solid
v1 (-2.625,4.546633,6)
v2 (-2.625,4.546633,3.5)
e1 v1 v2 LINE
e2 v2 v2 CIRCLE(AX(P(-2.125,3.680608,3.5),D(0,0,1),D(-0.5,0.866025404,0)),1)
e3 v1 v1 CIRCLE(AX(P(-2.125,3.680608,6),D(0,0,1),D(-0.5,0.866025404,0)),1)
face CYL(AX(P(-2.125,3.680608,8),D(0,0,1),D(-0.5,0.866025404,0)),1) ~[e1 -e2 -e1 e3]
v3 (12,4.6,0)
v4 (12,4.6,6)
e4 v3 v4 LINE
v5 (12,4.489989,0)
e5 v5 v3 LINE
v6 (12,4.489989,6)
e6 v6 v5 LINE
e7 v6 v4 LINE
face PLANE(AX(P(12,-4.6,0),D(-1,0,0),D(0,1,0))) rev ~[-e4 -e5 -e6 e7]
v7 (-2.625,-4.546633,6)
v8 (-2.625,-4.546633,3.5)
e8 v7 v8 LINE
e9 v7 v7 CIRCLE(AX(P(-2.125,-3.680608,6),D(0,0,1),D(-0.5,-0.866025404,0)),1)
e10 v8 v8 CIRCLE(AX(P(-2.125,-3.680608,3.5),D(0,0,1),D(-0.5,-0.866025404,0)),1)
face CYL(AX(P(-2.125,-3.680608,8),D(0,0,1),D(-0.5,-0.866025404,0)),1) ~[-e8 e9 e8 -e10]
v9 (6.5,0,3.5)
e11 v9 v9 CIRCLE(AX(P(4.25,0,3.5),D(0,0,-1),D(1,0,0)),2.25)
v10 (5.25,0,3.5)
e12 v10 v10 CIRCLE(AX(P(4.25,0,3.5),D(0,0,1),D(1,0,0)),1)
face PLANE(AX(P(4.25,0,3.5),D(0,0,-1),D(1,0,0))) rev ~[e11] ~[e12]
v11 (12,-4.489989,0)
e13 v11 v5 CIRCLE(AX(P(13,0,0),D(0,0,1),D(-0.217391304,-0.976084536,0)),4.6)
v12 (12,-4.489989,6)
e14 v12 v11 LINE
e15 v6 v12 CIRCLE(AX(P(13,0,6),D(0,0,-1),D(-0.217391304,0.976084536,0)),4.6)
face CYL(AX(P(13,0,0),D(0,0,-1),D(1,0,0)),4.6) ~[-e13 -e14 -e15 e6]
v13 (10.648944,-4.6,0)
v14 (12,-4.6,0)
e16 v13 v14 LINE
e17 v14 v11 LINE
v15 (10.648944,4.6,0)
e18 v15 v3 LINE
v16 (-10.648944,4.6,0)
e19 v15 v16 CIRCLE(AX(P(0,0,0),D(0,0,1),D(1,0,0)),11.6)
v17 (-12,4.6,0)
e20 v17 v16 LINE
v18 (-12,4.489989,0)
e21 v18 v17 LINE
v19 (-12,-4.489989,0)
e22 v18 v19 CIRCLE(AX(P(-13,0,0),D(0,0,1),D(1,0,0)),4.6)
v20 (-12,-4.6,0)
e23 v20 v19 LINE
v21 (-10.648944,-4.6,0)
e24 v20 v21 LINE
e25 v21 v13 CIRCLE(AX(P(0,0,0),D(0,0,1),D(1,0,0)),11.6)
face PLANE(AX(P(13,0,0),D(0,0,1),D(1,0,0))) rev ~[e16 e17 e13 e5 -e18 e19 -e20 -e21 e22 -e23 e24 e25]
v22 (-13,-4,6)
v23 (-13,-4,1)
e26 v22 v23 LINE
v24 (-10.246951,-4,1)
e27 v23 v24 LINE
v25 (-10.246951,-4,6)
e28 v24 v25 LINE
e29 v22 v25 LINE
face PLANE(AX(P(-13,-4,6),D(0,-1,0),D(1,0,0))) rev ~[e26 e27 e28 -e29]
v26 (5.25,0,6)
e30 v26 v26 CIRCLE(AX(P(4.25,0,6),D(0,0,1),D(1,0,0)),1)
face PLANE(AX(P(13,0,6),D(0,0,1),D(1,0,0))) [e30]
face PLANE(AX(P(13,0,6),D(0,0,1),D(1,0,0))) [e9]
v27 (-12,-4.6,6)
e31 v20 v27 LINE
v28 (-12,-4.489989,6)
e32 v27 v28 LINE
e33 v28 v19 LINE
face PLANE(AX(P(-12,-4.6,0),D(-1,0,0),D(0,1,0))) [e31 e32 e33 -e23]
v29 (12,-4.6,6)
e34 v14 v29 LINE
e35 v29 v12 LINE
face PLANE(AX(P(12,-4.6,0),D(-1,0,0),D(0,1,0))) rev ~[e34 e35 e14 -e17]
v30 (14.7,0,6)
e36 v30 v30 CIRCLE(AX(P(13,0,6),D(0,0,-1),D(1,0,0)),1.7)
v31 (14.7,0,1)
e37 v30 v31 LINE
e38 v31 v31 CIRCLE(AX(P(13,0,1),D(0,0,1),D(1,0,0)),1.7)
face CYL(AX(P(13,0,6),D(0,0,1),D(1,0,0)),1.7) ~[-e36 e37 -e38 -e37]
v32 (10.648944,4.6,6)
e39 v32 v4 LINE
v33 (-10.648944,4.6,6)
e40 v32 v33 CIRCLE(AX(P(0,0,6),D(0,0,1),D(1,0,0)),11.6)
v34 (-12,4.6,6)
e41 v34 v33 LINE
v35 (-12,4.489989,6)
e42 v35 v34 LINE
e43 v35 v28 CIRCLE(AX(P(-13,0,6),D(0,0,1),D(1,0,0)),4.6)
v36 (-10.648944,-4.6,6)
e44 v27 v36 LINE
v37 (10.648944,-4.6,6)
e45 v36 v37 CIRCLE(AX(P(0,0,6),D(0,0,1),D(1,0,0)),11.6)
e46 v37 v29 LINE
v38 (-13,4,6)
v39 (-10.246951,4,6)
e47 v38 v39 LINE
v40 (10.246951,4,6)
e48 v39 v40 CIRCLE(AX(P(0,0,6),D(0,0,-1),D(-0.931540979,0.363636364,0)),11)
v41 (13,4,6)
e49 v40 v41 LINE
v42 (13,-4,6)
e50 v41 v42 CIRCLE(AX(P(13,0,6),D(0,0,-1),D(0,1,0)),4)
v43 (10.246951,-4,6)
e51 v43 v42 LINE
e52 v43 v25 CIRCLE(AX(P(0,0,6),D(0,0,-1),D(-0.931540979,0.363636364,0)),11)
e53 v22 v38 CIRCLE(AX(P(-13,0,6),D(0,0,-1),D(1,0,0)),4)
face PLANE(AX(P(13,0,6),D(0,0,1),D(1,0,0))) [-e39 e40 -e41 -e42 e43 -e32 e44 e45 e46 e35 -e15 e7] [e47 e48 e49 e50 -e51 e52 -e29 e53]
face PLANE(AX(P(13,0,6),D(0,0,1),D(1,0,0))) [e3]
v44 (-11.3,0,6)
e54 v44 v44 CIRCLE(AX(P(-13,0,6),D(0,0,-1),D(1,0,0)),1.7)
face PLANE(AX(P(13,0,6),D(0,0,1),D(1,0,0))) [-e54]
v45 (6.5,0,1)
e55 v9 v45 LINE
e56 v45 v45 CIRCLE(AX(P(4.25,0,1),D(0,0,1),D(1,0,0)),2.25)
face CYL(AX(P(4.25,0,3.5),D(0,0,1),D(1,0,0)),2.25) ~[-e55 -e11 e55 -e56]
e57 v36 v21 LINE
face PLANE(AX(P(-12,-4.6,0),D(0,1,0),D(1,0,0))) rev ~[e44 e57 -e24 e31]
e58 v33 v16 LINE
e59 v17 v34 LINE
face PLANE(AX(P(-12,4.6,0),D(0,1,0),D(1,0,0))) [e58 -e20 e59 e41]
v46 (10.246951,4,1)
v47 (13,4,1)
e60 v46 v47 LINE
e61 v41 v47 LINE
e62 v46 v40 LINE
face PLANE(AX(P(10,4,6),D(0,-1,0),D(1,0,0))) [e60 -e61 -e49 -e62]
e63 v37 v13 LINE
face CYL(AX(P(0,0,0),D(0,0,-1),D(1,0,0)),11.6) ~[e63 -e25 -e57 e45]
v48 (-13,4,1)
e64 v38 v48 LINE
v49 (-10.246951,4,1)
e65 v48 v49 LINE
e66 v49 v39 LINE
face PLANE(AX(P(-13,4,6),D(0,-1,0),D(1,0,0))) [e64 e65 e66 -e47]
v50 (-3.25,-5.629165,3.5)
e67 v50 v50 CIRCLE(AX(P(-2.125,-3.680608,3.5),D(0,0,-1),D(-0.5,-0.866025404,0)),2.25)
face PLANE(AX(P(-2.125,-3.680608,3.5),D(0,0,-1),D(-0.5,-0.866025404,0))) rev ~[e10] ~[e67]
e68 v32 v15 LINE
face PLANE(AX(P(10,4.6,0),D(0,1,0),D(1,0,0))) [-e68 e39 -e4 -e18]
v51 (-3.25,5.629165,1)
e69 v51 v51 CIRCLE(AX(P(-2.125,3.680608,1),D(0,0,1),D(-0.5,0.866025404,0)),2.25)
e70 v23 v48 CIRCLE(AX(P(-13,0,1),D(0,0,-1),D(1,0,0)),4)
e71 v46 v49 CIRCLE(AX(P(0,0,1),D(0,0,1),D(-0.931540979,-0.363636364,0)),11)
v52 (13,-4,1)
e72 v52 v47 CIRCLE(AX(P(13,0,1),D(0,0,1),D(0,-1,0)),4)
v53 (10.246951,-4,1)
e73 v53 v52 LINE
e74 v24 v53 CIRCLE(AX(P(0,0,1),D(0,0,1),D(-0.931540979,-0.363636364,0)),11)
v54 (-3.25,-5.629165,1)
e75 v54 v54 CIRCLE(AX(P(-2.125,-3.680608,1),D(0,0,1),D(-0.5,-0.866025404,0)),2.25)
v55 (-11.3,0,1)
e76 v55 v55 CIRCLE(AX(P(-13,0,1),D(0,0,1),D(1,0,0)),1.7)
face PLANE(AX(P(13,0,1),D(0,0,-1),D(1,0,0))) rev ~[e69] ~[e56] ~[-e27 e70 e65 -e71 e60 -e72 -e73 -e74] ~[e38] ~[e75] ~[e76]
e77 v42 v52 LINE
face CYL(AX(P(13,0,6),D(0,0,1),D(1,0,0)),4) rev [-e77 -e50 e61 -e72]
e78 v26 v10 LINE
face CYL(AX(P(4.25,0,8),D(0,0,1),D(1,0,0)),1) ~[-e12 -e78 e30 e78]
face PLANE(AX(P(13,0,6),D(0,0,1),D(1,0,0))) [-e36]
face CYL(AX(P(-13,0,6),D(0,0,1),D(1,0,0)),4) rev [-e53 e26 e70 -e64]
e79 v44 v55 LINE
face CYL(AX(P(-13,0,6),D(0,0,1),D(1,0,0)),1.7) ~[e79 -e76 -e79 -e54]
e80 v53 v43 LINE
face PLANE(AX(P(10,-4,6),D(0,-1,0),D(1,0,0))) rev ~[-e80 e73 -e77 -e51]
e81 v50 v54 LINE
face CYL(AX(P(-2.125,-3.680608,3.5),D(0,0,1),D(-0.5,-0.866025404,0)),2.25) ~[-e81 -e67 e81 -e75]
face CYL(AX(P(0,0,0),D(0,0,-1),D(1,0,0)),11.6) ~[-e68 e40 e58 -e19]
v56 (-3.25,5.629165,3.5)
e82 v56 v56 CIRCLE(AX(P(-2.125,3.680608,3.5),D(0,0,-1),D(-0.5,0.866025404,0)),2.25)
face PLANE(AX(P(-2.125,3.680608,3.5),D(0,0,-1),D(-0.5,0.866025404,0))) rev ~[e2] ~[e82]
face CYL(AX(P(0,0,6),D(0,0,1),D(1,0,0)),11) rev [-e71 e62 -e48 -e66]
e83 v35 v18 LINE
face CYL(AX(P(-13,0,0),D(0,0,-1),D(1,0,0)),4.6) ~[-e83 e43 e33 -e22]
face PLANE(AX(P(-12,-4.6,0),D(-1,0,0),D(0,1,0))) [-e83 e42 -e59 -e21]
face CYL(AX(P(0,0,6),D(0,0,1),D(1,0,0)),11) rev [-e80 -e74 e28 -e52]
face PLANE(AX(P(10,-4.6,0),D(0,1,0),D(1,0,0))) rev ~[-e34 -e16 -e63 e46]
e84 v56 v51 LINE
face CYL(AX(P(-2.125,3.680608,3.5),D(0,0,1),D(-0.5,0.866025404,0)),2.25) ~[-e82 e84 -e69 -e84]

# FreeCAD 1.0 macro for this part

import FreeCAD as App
import Part
import Sketcher

V = App.Vector
Q = App.Units.Quantity


def add_polygon(sketch, points):
    """Adds a closed chain of lines whose ends are joined by coincident constraints."""
    first, n = sketch.GeometryCount, len(points)
    for a, b in zip(points, points[1:] + points[:1]):
        sketch.addGeometry(Part.LineSegment(App.Vector(*a, 0), App.Vector(*b, 0)), False)
    for i in range(n):
        sketch.addConstraint(Sketcher.Constraint("Coincident", first + i, 2, first + (i + 1) % n, 1))

doc = App.newDocument("Part")
body = doc.addObject("PartDesign::Body", "Body")

# Sketch on XY plane
sketch1 = body.newObject("Sketcher::SketchObject", "Sketch")
sketch1.AttachmentSupport = (doc.getObject("XY_Plane"), [""])
sketch1.MapMode = "FlatFace"
sketch1.addGeometry(Part.Circle(V(-13, 0, 0), V(0, 0, 1), 1.7), False)
sketch1.addConstraint([
    Sketcher.Constraint("PointOnObject", 0, 3, -1),
    Sketcher.Constraint("Diameter", 0, Q("3.4 mm")),
    Sketcher.Constraint("DistanceX", 0, 3, -1, 1, Q("13 mm")),
])
pad1 = body.newObject("PartDesign::Pad", "Pad")
pad1.Profile = sketch1
pad1.Length = 11
body2 = doc.addObject("PartDesign::Body", "Body001")

# Sketch on XY plane
sketch2 = body2.newObject("Sketcher::SketchObject", "Sketch001")
sketch2.AttachmentSupport = (doc.getObject("XY_Plane001"), [""])
sketch2.MapMode = "FlatFace"
sketch2.addGeometry(Part.Circle(V(13, 0, 0), V(0, 0, 1), 1.7), False)
sketch2.addConstraint([
    Sketcher.Constraint("PointOnObject", 0, 3, -1),
    Sketcher.Constraint("Diameter", 0, Q("3.4 mm")),
    Sketcher.Constraint("DistanceX", -1, 1, 0, 3, Q("13 mm")),
])
pad2 = body2.newObject("PartDesign::Pad", "Pad001")
pad2.Profile = sketch2
pad2.Length = 11
body3 = doc.addObject("PartDesign::Body", "Body002")

# Sketch on XY plane
sketch3 = body3.newObject("Sketcher::SketchObject", "Sketch002")
sketch3.AttachmentSupport = (doc.getObject("XY_Plane002"), [""])
sketch3.MapMode = "FlatFace"
sketch3.AttachmentOffset = App.Placement(V(0, 0, 2.5), App.Rotation())
sketch3.addGeometry(Part.Circle(V(0, 0, 0), V(0, 0, 1), 2.25), False)
sketch3.addConstraint([
    Sketcher.Constraint("Coincident", 0, 3, -1, 1),
    Sketcher.Constraint("Diameter", 0, Q("4.5 mm")),
])
pad3 = body3.newObject("PartDesign::Pad", "Pad002")
pad3.Profile = sketch3
pad3.Length = 8
body4 = doc.addObject("PartDesign::Body", "Body003")

# Sketch on XY plane
sketch4 = body4.newObject("Sketcher::SketchObject", "Sketch003")
sketch4.AttachmentSupport = (doc.getObject("XY_Plane003"), [""])
sketch4.MapMode = "FlatFace"
sketch4.AttachmentOffset = App.Placement(V(0, 0, -2), App.Rotation())
sketch4.addGeometry(Part.Circle(V(0, 0, 0), V(0, 0, 1), 1), False)
sketch4.addConstraint([
    Sketcher.Constraint("Coincident", 0, 3, -1, 1),
    Sketcher.Constraint("Diameter", 0, Q("2 mm")),
])
pad4 = body4.newObject("PartDesign::Pad", "Pad003")
pad4.Profile = sketch4
pad4.Length = 5
body5 = doc.addObject("PartDesign::Body", "Body004")

# Sketch on XY plane
sketch5 = body5.newObject("Sketcher::SketchObject", "Sketch004")
sketch5.AttachmentSupport = (doc.getObject("XY_Plane004"), [""])
sketch5.MapMode = "FlatFace"
sketch5.AttachmentOffset = App.Placement(V(0, 0, 4.5), App.Rotation())
sketch5.addGeometry(Part.Circle(V(0, 0, 0), V(0, 0, 1), 1), False)
sketch5.addConstraint([
    Sketcher.Constraint("Coincident", 0, 3, -1, 1),
    Sketcher.Constraint("Diameter", 0, Q("2 mm")),
])
pad5 = body5.newObject("PartDesign::Pad", "Pad004")
pad5.Profile = sketch5
pad5.Length = 1
doc.recompute()

boolean = body5.newObject("PartDesign::Boolean", "Boolean")
boolean.Type = "Fuse"
boolean.addObjects([body3])
doc.recompute()

boolean2 = body5.newObject("PartDesign::Boolean", "Boolean001")
boolean2.Type = "Fuse"
boolean2.addObjects([body4])
body6 = doc.addObject("PartDesign::Body", "Body005")
doc.recompute()

body5.Placement = App.Placement(V(4.25, 0, 0), App.Rotation(V(0, 0, 1), 0))
boolean3 = body6.newObject("PartDesign::Boolean", "Boolean002")
boolean3.Type = "Fuse"
boolean3.addObjects([body5])
body7 = doc.addObject("PartDesign::Body", "Body006")
body7.AllowCompound = True
doc.recompute()

body7.BaseFeature = body6
doc.recompute()

body8 = doc.addObject("PartDesign::Body", "Body007")
body8.BaseFeature = body6
body8.Placement = App.Placement(V(0, 0, 0), App.Rotation(V(0, 0, 1), 120))
boolean4 = body7.newObject("PartDesign::Boolean", "Boolean003")
boolean4.Type = "Fuse"
boolean4.addObjects([body8])
doc.recompute()

body6.Placement = App.Placement(V(0, 0, 0), App.Rotation(V(0, 0, 1), 240))
boolean5 = body7.newObject("PartDesign::Boolean", "Boolean004")
boolean5.Type = "Fuse"
boolean5.addObjects([body6])
doc.recompute()

boolean6 = body7.newObject("PartDesign::Boolean", "Boolean005")
boolean6.Type = "Fuse"
boolean6.addObjects([body])
doc.recompute()

boolean7 = body7.newObject("PartDesign::Boolean", "Boolean006")
boolean7.Type = "Fuse"
boolean7.addObjects([body2])
body9 = doc.addObject("PartDesign::Body", "Body008")

# Sketch on XY plane
sketch6 = body9.newObject("Sketcher::SketchObject", "Sketch005")
sketch6.AttachmentSupport = (doc.getObject("XY_Plane008"), [""])
sketch6.MapMode = "FlatFace"
add_polygon(sketch6, [(-13, 4), (-13, -4), (-10, -4), (-10, 4)])  # lines 0-3
sketch6.addConstraint([
    Sketcher.Constraint("Vertical", 0),
    Sketcher.Constraint("Horizontal", 1),
    Sketcher.Constraint("Vertical", 2),
    Sketcher.Constraint("Horizontal", 3),
    Sketcher.Constraint("DistanceX", 1, 1, 1, 2, Q("3 mm")),
    Sketcher.Constraint("DistanceY", 0, 2, 0, 1, Q("8 mm")),
    Sketcher.Constraint("DistanceX", 0, 2, -1, 1, Q("13 mm")),
    Sketcher.Constraint("DistanceY", 0, 2, -1, 1, Q("4 mm")),
])
pad6 = body9.newObject("PartDesign::Pad", "Pad005")
pad6.Profile = sketch6
pad6.Length = 5
body10 = doc.addObject("PartDesign::Body", "Body009")

# Sketch on XY plane
sketch7 = body10.newObject("Sketcher::SketchObject", "Sketch006")
sketch7.AttachmentSupport = (doc.getObject("XY_Plane009"), [""])
sketch7.MapMode = "FlatFace"
sketch7.addGeometry(Part.Circle(V(0, 0, 0), V(0, 0, 1), 11), False)
sketch7.addConstraint([
    Sketcher.Constraint("Coincident", 0, 3, -1, 1),
    Sketcher.Constraint("Diameter", 0, Q("22 mm")),
])
pad7 = body10.newObject("PartDesign::Pad", "Pad006")
pad7.Profile = sketch7
pad7.Length = 5
body11 = doc.addObject("PartDesign::Body", "Body010")

# Sketch on XY plane
sketch8 = body11.newObject("Sketcher::SketchObject", "Sketch007")
sketch8.AttachmentSupport = (doc.getObject("XY_Plane010"), [""])
sketch8.MapMode = "FlatFace"
add_polygon(sketch8, [(10, 4), (10, -4), (13, -4), (13, 4)])  # lines 0-3
sketch8.addConstraint([
    Sketcher.Constraint("Vertical", 0),
    Sketcher.Constraint("Horizontal", 1),
    Sketcher.Constraint("Vertical", 2),
    Sketcher.Constraint("Horizontal", 3),
    Sketcher.Constraint("DistanceX", 1, 1, 1, 2, Q("3 mm")),
    Sketcher.Constraint("DistanceY", 0, 2, 0, 1, Q("8 mm")),
    Sketcher.Constraint("DistanceX", -1, 1, 0, 2, Q("10 mm")),
    Sketcher.Constraint("DistanceY", 0, 2, -1, 1, Q("4 mm")),
])
pad8 = body11.newObject("PartDesign::Pad", "Pad007")
pad8.Profile = sketch8
pad8.Length = 5
body12 = doc.addObject("PartDesign::Body", "Body011")

# Sketch on XY plane
sketch9 = body12.newObject("Sketcher::SketchObject", "Sketch008")
sketch9.AttachmentSupport = (doc.getObject("XY_Plane011"), [""])
sketch9.MapMode = "FlatFace"
sketch9.addGeometry(Part.Circle(V(13, 0, 0), V(0, 0, 1), 4), False)
sketch9.addConstraint([
    Sketcher.Constraint("PointOnObject", 0, 3, -1),
    Sketcher.Constraint("Diameter", 0, Q("8 mm")),
    Sketcher.Constraint("DistanceX", -1, 1, 0, 3, Q("13 mm")),
])
pad9 = body12.newObject("PartDesign::Pad", "Pad008")
pad9.Profile = sketch9
pad9.Length = 5
body13 = doc.addObject("PartDesign::Body", "Body012")

# Sketch on XY plane
sketch10 = body13.newObject("Sketcher::SketchObject", "Sketch009")
sketch10.AttachmentSupport = (doc.getObject("XY_Plane012"), [""])
sketch10.MapMode = "FlatFace"
sketch10.addGeometry(Part.Circle(V(-13, 0, 0), V(0, 0, 1), 4), False)
sketch10.addConstraint([
    Sketcher.Constraint("PointOnObject", 0, 3, -1),
    Sketcher.Constraint("Diameter", 0, Q("8 mm")),
    Sketcher.Constraint("DistanceX", 0, 3, -1, 1, Q("13 mm")),
])
pad10 = body13.newObject("PartDesign::Pad", "Pad009")
pad10.Profile = sketch10
pad10.Length = 5
doc.recompute()

boolean8 = body13.newObject("PartDesign::Boolean", "Boolean007")
boolean8.Type = "Fuse"
boolean8.addObjects([body9])
doc.recompute()

boolean9 = body13.newObject("PartDesign::Boolean", "Boolean008")
boolean9.Type = "Fuse"
boolean9.addObjects([body10])
doc.recompute()

boolean10 = body13.newObject("PartDesign::Boolean", "Boolean009")
boolean10.Type = "Fuse"
boolean10.addObjects([body11])
doc.recompute()

boolean11 = body13.newObject("PartDesign::Boolean", "Boolean010")
boolean11.Type = "Fuse"
boolean11.addObjects([body12])
doc.recompute()

boolean12 = body13.newObject("PartDesign::Boolean", "Boolean011")
boolean12.Type = "Cut"
boolean12.addObjects([body7])
body14 = doc.addObject("PartDesign::Body", "Body013")
doc.recompute()

body13.Placement = App.Placement(V(0, 0, 6), App.Rotation(V(1, 0, 0), 180))
boolean13 = body14.newObject("PartDesign::Boolean", "Boolean012")
boolean13.Type = "Fuse"
boolean13.addObjects([body13])
body15 = doc.addObject("PartDesign::Body", "Body014")

# Sketch on XY plane
sketch11 = body15.newObject("Sketcher::SketchObject", "Sketch010")
sketch11.AttachmentSupport = (doc.getObject("XY_Plane014"), [""])
sketch11.MapMode = "FlatFace"
add_polygon(sketch11, [(-12, 4.6), (-12, -4.6), (-10, -4.6), (-10, 4.6)])  # lines 0-3
sketch11.addConstraint([
    Sketcher.Constraint("Vertical", 0),
    Sketcher.Constraint("Horizontal", 1),
    Sketcher.Constraint("Vertical", 2),
    Sketcher.Constraint("Horizontal", 3),
    Sketcher.Constraint("DistanceX", 1, 1, 1, 2, Q("2 mm")),
    Sketcher.Constraint("DistanceY", 0, 2, 0, 1, Q("9.2 mm")),
    Sketcher.Constraint("DistanceX", 0, 2, -1, 1, Q("12 mm")),
    Sketcher.Constraint("DistanceY", 0, 2, -1, 1, Q("4.6 mm")),
])
pad11 = body15.newObject("PartDesign::Pad", "Pad010")
pad11.Profile = sketch11
pad11.Length = 6
body16 = doc.addObject("PartDesign::Body", "Body015")

# Sketch on XY plane
sketch12 = body16.newObject("Sketcher::SketchObject", "Sketch011")
sketch12.AttachmentSupport = (doc.getObject("XY_Plane015"), [""])
sketch12.MapMode = "FlatFace"
sketch12.addGeometry(Part.Circle(V(0, 0, 0), V(0, 0, 1), 11.6), False)
sketch12.addConstraint([
    Sketcher.Constraint("Coincident", 0, 3, -1, 1),
    Sketcher.Constraint("Diameter", 0, Q("23.2 mm")),
])
pad12 = body16.newObject("PartDesign::Pad", "Pad011")
pad12.Profile = sketch12
pad12.Length = 6
body17 = doc.addObject("PartDesign::Body", "Body016")

# Sketch on XY plane
sketch13 = body17.newObject("Sketcher::SketchObject", "Sketch012")
sketch13.AttachmentSupport = (doc.getObject("XY_Plane016"), [""])
sketch13.MapMode = "FlatFace"
sketch13.addGeometry(Part.Circle(V(-13, 0, 0), V(0, 0, 1), 4.6), False)
sketch13.addConstraint([
    Sketcher.Constraint("PointOnObject", 0, 3, -1),
    Sketcher.Constraint("Diameter", 0, Q("9.2 mm")),
    Sketcher.Constraint("DistanceX", 0, 3, -1, 1, Q("13 mm")),
])
pad13 = body17.newObject("PartDesign::Pad", "Pad012")
pad13.Profile = sketch13
pad13.Length = 6
body18 = doc.addObject("PartDesign::Body", "Body017")

# Sketch on XY plane
sketch14 = body18.newObject("Sketcher::SketchObject", "Sketch013")
sketch14.AttachmentSupport = (doc.getObject("XY_Plane017"), [""])
sketch14.MapMode = "FlatFace"
sketch14.addGeometry(Part.Circle(V(13, 0, 0), V(0, 0, 1), 4.6), False)
sketch14.addConstraint([
    Sketcher.Constraint("PointOnObject", 0, 3, -1),
    Sketcher.Constraint("Diameter", 0, Q("9.2 mm")),
    Sketcher.Constraint("DistanceX", -1, 1, 0, 3, Q("13 mm")),
])
pad14 = body18.newObject("PartDesign::Pad", "Pad013")
pad14.Profile = sketch14
pad14.Length = 6
body19 = doc.addObject("PartDesign::Body", "Body018")
body19.AllowCompound = True

# Sketch on XY plane
sketch15 = body19.newObject("Sketcher::SketchObject", "Sketch014")
sketch15.AttachmentSupport = (doc.getObject("XY_Plane018"), [""])
sketch15.MapMode = "FlatFace"
add_polygon(sketch15, [(10, 4.6), (10, -4.6), (12, -4.6), (12, 4.6)])  # lines 0-3
sketch15.addConstraint([
    Sketcher.Constraint("Vertical", 0),
    Sketcher.Constraint("Horizontal", 1),
    Sketcher.Constraint("Vertical", 2),
    Sketcher.Constraint("Horizontal", 3),
    Sketcher.Constraint("DistanceX", 1, 1, 1, 2, Q("2 mm")),
    Sketcher.Constraint("DistanceY", 0, 2, 0, 1, Q("9.2 mm")),
    Sketcher.Constraint("DistanceX", -1, 1, 0, 2, Q("10 mm")),
    Sketcher.Constraint("DistanceY", 0, 2, -1, 1, Q("4.6 mm")),
])
pad15 = body19.newObject("PartDesign::Pad", "Pad014")
pad15.Profile = sketch15
pad15.Length = 6
doc.recompute()

boolean14 = body19.newObject("PartDesign::Boolean", "Boolean013")
boolean14.Type = "Fuse"
boolean14.addObjects([body15])
doc.recompute()

boolean15 = body19.newObject("PartDesign::Boolean", "Boolean014")
boolean15.Type = "Fuse"
boolean15.addObjects([body16])
doc.recompute()

boolean16 = body19.newObject("PartDesign::Boolean", "Boolean015")
boolean16.Type = "Fuse"
boolean16.addObjects([body17])
doc.recompute()

boolean17 = body19.newObject("PartDesign::Boolean", "Boolean016")
boolean17.Type = "Fuse"
boolean17.addObjects([body18])
doc.recompute()

boolean18 = body19.newObject("PartDesign::Boolean", "Boolean017")
boolean18.Type = "Cut"
boolean18.addObjects([body14])

doc.recompute()
